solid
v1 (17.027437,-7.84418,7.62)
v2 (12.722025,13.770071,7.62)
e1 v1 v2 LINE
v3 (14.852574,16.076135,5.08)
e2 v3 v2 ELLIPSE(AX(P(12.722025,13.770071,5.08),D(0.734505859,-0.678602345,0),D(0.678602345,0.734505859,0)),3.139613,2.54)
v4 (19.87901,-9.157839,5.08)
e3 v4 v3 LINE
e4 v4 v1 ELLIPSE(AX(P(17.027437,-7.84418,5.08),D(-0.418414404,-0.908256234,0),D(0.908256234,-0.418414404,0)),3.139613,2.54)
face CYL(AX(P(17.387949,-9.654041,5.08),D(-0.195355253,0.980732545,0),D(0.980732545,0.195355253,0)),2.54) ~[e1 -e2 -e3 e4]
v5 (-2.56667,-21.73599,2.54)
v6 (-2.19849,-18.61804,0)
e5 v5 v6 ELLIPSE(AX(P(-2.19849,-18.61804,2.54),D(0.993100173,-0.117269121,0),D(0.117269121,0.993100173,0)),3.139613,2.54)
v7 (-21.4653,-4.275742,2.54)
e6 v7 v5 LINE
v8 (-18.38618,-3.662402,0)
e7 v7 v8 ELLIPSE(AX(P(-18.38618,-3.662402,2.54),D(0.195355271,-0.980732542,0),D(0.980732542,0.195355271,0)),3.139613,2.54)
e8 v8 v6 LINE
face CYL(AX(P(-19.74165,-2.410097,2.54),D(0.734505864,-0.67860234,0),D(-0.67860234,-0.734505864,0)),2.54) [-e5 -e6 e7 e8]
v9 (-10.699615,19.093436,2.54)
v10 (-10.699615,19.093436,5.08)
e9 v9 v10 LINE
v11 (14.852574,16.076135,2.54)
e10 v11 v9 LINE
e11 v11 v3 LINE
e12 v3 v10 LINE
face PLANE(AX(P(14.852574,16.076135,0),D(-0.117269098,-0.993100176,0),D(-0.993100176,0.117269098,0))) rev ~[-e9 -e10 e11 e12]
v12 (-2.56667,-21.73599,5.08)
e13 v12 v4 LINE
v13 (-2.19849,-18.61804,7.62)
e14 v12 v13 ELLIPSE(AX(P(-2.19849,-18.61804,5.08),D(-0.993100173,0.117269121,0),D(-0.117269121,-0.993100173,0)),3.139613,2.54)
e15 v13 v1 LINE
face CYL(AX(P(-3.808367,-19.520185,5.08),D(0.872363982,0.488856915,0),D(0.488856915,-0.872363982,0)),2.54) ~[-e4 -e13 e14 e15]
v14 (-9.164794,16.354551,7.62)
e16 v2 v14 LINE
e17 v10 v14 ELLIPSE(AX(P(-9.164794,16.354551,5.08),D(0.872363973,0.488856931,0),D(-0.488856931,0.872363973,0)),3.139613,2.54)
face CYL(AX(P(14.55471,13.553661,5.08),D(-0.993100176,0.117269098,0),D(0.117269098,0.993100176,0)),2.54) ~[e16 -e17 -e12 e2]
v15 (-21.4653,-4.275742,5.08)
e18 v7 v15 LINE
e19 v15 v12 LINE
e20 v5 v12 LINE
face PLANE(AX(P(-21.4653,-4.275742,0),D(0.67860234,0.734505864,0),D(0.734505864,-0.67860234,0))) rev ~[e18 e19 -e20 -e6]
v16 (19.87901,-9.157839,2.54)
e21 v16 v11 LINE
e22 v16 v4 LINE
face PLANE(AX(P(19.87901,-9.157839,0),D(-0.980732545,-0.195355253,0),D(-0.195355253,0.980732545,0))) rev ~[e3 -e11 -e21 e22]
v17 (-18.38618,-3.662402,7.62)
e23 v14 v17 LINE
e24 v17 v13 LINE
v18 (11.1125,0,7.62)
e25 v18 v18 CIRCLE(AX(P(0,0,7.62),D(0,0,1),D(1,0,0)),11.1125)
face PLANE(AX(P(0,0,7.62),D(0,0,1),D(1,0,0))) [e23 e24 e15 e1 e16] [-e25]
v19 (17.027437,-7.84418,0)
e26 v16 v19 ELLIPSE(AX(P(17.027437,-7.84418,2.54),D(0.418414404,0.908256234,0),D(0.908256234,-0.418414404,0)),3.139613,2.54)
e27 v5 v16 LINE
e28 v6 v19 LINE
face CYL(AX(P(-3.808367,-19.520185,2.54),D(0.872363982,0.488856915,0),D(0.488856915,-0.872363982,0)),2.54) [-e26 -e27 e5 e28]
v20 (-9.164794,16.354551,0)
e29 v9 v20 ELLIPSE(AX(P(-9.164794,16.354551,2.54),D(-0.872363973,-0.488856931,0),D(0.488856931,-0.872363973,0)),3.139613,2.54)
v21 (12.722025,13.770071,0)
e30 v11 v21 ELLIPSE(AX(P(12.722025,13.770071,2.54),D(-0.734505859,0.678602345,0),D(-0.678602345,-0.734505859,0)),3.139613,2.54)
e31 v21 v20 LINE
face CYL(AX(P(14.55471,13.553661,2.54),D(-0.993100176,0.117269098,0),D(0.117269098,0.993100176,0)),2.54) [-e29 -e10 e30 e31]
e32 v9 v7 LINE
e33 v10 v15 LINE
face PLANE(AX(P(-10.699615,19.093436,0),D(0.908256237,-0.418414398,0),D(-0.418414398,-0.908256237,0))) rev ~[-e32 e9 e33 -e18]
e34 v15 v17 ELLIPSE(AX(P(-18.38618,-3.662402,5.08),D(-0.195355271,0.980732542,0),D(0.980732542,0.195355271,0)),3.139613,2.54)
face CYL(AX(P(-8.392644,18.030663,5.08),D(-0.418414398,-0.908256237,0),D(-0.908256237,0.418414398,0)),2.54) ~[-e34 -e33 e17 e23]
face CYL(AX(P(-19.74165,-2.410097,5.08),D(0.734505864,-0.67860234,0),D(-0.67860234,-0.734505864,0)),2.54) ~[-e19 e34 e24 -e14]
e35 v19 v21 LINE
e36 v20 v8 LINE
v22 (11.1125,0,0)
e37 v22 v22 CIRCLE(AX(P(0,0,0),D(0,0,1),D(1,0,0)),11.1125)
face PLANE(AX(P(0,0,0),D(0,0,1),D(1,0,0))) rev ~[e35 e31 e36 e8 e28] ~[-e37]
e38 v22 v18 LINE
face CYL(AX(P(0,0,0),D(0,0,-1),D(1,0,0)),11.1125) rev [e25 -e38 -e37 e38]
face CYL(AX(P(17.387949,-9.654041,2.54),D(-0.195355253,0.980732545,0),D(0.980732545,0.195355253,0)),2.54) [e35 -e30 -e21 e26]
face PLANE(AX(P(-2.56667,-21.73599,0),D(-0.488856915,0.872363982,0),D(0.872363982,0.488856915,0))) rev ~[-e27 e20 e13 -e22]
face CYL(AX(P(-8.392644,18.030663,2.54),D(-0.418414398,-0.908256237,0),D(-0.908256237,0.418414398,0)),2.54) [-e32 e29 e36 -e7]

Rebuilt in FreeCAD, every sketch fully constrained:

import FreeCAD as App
import Part
import Sketcher
from FreeCAD import Vector
Q = App.Units.Quantity


def edges_at(feature, points):
    """Names of the edges that pass closest to the given points."""
    edges = feature.Shape.Edges
    near = lambda p: min(range(len(edges)), key=lambda i: edges[i].distToShape(Part.Vertex(*p))[0])
    return sorted({f"Edge{near(p) + 1}" for p in points})


def add_polygon(sketch, points):
    """Adds a closed chain of lines whose ends are joined by coincident constraints."""
    first, n = sketch.GeometryCount, len(points)
    for a, b in zip(points, points[1:] + points[:1]):
        sketch.addGeometry(Part.LineSegment(App.Vector(*a, 0), App.Vector(*b, 0)), False)
    for i in range(n):
        sketch.addConstraint(Sketcher.Constraint("Coincident", first + i, 2, first + (i + 1) % n, 1))

doc = App.newDocument("Part")
body = doc.addObject("PartDesign::Body", "Body")

# Sketch on XY plane
sketch1 = doc.addObject("Sketcher::SketchObject", "Sketch")
body.addObject(sketch1)
sketch1.AttachmentSupport = (doc.XY_Plane, [""])
sketch1.MapMode = "FlatFace"
add_polygon(sketch1, [(-2.56667, -21.73599), (19.87901, -9.157839), (14.852574, 16.076135), (-10.699615, 19.093436), (-21.4653, -4.275742)])  # lines 0-4
sketch1.addGeometry(Part.Circle(Vector(0, 0, 0), Vector(0, 0, 1), 11.1125), False)  # 5
sketch1.addConstraint([
    Sketcher.Constraint("Coincident", 5, 3, -1, 1),
    Sketcher.Constraint("Equal", 0, 1),
    Sketcher.Constraint("Equal", 1, 2),
    Sketcher.Constraint("Equal", 2, 3),
    Sketcher.Constraint("Equal", 3, 4),
    Sketcher.Constraint("Diameter", 5, Q("0.875 in")),
    Sketcher.Constraint("DistanceX", 3, 2, -1, 1, 21.4653),
    Sketcher.Constraint("DistanceY", 1, 2, 2, 2, 3.017301),
    Sketcher.Constraint("Distance", 0, 25.729719),
    Sketcher.Constraint("DistanceX", -1, 1, 0, 2, 19.87901),
    Sketcher.Constraint("DistanceY", 0, 2, -1, 1, 9.157839),
    Sketcher.Constraint("DistanceX", 4, 2, -1, 1, 2.56667),
])
pad1 = doc.addObject("PartDesign::Pad", "Pad")
body.addObject(pad1)
pad1.Profile = sketch1
pad1.Length = Q("0.3 in")
doc.recompute()

fillet = doc.addObject("PartDesign::Fillet", "Fillet")
body.addObject(fillet)
fillet.Base = (pad1, edges_at(pad1, [
    (-12.016, -13.006, 7.62),
    (8.656, -15.447, 7.62),
    (17.366, 3.459, 7.62),
    (2.076, 17.585, 7.62),
    (-16.082, 7.409, 7.62),
    (8.656, -15.447, 0),
    (-12.016, -13.006, 0),
    (-16.082, 7.409, 0),
    (2.076, 17.585, 0),
    (17.366, 3.459, 0),
]))
fillet.Radius = Q("0.1 in")

doc.recompute()
